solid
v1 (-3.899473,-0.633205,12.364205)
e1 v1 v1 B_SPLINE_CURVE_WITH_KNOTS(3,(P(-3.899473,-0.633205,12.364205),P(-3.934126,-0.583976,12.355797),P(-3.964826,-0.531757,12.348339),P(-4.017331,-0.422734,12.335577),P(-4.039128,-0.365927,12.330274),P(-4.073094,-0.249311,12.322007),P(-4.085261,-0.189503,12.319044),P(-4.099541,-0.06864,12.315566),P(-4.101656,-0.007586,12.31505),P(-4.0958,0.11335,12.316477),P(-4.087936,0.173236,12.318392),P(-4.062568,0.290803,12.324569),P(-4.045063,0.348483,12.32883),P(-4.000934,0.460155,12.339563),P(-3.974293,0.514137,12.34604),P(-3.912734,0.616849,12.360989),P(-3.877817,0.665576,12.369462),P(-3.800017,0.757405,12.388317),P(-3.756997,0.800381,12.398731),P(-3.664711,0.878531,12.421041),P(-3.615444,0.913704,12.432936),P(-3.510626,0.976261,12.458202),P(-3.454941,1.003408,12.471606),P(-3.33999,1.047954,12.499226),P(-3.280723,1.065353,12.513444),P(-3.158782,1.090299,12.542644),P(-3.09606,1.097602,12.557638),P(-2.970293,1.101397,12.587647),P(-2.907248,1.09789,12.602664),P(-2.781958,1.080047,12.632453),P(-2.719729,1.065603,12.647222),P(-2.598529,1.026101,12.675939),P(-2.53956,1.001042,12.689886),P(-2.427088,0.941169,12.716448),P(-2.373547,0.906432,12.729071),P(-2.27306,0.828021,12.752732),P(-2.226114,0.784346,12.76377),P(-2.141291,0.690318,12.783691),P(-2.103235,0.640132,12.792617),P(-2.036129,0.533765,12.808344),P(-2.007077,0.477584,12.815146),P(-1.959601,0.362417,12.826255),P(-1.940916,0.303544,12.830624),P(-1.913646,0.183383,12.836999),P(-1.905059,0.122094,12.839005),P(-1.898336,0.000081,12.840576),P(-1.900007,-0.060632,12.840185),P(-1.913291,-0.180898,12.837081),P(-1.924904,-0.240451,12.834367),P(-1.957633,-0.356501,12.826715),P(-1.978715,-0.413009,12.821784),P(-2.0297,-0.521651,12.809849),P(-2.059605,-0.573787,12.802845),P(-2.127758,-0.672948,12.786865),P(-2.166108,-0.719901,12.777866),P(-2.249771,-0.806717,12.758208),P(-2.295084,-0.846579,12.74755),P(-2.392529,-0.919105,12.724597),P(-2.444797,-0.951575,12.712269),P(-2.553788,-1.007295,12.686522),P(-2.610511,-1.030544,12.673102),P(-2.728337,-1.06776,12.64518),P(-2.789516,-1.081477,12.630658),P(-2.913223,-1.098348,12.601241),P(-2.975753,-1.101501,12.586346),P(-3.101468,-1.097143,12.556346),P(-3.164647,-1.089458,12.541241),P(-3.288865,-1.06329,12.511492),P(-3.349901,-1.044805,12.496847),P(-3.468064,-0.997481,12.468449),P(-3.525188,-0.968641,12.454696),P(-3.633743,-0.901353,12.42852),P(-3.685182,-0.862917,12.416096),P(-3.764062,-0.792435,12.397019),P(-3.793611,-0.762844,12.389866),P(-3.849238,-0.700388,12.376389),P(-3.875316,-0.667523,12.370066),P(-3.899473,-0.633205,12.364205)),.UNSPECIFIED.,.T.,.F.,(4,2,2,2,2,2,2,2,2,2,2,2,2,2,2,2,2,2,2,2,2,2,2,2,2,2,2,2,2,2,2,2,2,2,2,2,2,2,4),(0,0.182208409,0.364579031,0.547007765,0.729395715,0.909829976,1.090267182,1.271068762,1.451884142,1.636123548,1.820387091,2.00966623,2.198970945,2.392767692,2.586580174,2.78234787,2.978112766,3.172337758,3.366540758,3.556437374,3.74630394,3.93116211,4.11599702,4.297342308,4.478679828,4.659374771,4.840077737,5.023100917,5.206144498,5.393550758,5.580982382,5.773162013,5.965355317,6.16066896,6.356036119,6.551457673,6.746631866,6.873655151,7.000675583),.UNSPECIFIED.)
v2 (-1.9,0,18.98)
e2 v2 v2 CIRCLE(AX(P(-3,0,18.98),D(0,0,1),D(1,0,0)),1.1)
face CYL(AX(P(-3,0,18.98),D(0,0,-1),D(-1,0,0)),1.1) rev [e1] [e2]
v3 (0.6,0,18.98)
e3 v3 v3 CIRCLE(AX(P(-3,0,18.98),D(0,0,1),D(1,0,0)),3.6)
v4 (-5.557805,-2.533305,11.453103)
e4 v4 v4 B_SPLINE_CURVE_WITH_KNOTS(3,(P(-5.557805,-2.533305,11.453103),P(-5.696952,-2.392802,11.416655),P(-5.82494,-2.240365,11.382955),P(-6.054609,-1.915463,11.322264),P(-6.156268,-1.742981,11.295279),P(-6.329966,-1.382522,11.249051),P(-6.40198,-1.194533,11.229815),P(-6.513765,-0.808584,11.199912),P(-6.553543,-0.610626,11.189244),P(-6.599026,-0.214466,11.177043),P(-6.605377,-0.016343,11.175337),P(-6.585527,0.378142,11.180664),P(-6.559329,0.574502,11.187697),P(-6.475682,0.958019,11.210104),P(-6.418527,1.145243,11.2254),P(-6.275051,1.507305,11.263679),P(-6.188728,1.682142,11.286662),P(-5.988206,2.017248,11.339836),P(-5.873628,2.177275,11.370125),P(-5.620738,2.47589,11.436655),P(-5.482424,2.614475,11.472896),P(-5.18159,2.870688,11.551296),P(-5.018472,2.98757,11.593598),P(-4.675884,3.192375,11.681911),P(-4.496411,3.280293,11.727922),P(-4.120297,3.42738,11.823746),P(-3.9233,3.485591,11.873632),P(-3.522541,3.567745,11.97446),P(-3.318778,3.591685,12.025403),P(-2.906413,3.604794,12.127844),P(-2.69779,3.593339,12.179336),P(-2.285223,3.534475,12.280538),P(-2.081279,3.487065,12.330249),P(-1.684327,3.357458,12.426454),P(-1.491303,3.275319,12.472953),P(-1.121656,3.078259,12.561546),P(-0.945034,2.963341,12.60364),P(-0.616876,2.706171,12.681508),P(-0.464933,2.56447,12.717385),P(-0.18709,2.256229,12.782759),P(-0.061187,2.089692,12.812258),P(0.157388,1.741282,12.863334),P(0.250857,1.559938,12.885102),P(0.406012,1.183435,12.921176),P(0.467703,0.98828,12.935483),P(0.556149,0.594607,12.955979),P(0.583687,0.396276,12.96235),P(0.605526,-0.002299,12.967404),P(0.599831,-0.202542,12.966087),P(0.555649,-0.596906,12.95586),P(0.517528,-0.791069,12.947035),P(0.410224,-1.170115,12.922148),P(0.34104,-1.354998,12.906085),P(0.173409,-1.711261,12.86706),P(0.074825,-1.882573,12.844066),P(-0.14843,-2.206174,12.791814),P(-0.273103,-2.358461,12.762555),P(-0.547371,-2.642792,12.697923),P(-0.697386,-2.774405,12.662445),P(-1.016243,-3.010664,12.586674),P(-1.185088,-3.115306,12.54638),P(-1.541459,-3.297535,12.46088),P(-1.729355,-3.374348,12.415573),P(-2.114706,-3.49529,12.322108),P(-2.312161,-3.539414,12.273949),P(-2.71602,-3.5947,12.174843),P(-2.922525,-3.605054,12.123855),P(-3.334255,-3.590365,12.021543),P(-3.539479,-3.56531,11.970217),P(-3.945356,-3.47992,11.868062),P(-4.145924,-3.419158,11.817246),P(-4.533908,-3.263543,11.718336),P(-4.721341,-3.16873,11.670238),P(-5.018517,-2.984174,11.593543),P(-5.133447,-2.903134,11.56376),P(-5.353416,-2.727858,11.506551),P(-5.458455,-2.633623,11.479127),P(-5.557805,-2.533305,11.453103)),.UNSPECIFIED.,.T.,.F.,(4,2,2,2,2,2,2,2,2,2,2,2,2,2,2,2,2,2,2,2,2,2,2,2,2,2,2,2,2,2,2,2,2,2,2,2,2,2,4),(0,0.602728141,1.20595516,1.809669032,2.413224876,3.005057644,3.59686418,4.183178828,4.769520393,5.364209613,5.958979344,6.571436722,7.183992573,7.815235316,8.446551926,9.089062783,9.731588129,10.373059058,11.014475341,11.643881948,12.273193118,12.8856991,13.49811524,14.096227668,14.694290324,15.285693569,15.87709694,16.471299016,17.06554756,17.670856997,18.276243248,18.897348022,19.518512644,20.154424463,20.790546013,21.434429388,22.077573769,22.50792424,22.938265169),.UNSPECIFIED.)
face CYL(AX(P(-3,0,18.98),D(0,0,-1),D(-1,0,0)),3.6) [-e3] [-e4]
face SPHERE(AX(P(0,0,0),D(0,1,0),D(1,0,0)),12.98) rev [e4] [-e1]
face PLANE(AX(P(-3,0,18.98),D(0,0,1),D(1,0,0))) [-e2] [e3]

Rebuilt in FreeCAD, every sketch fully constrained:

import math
import FreeCAD as App
import Part
import Sketcher

V = App.Vector
Q = App.Units.Quantity

doc = App.newDocument("Part")
body = doc.addObject("PartDesign::Body", "Body")

sketch1 = doc.addObject("Sketcher::SketchObject", "Sketch")
body.addObject(sketch1)
sketch1.AttachmentSupport = (doc.XY_Plane, [""])
sketch1.MapMode = "FlatFace"
sketch1.addGeometry(Part.Circle(V(-3, 0, 0), V(0, 0, 1), 3.6), False)
sketch1.addGeometry(Part.Circle(V(-3, 0, 0), V(0, 0, 1), 1.1), False)
sketch1.addConstraint(Sketcher.Constraint("Coincident", 1, 3, 0, 3))
sketch1.addConstraint(Sketcher.Constraint("PointOnObject", 0, 3, -1))
sketch1.addConstraint(Sketcher.Constraint("Diameter", 0, Q("7.2 mm")))
sketch1.addConstraint(Sketcher.Constraint("Diameter", 1, Q("2.2 mm")))
sketch1.addConstraint(Sketcher.Constraint("DistanceX", 0, 3, -1, 1, Q("3 mm")))
pad1 = doc.addObject("PartDesign::Pad", "Pad")
body.addObject(pad1)
pad1.Profile = sketch1
pad1.Length = 18.98

sketch2 = doc.addObject("Sketcher::SketchObject", "Sketch001")
body.addObject(sketch2)
sketch2.AttachmentSupport = (doc.XY_Plane, [""])
sketch2.MapMode = "FlatFace"
sketch2.addGeometry(Part.ArcOfCircle(Part.Circle(V(0, 0, 0), V(0, 0, 1), 13), math.radians(-90), math.radians(90)), False)
sketch2.addGeometry(Part.LineSegment(V(0, 13, 0), V(0, -13, 0)), False)
sketch2.addConstraint(Sketcher.Constraint("Coincident", 0, 1, 1, 2))
sketch2.addConstraint(Sketcher.Constraint("Coincident", 1, 1, 0, 2))
sketch2.addConstraint(Sketcher.Constraint("Vertical", 1))
sketch2.addConstraint(Sketcher.Constraint("Coincident", 0, 3, -1, 1))
sketch2.addConstraint(Sketcher.Constraint("PointOnObject", 0, 1, -2))
sketch2.addConstraint(Sketcher.Constraint("Radius", 0, Q("12.98 mm")))
groove = doc.addObject("PartDesign::Groove", "Groove")
body.addObject(groove)
groove.Profile = sketch2
groove.ReferenceAxis = (sketch2, ["V_Axis"])
groove.Angle = 360

doc.recompute()
